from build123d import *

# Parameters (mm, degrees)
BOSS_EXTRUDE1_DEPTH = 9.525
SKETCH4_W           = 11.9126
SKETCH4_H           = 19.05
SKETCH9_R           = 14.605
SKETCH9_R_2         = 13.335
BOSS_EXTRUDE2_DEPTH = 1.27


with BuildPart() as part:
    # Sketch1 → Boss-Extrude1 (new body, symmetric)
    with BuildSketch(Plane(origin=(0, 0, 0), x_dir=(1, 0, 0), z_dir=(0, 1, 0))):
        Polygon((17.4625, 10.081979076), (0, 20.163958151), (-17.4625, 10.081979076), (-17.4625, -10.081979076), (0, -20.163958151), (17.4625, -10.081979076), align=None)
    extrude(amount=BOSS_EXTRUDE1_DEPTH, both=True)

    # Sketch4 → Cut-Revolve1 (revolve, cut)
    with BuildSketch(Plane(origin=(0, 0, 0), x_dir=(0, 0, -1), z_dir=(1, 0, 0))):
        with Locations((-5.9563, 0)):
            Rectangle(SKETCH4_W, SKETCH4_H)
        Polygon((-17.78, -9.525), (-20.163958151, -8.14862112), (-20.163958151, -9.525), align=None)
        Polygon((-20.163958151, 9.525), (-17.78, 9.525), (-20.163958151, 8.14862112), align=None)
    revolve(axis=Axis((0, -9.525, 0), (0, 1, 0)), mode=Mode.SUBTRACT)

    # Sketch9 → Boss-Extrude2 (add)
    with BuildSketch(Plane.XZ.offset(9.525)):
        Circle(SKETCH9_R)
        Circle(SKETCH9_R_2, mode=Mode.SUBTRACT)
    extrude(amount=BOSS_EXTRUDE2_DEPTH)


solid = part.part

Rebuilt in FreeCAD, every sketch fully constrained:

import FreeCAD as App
import Part
import Sketcher
Q = App.Units.Quantity


def add_polygon(sketch, points):
    """Adds a closed chain of lines whose ends are joined by coincident constraints."""
    first, n = sketch.GeometryCount, len(points)
    for a, b in zip(points, points[1:] + points[:1]):
        sketch.addGeometry(Part.LineSegment(App.Vector(*a, 0), App.Vector(*b, 0)), False)
    for i in range(n):
        sketch.addConstraint(Sketcher.Constraint("Coincident", first + i, 2, first + (i + 1) % n, 1))

doc = App.newDocument("Part")
body = doc.addObject("PartDesign::Body", "Body")

# Sketch on XZ plane
sketch1 = doc.addObject("Sketcher::SketchObject", "Sketch")
body.addObject(sketch1)
sketch1.AttachmentSupport = (doc.XZ_Plane, [""])
sketch1.MapMode = "FlatFace"
add_polygon(sketch1, [(17, -10), (0, -20), (-17, -10), (-17, 10), (0, 20), (17, 10)])  # lines 0-5
sketch1.addConstraint(Sketcher.Constraint("Vertical", 2))
sketch1.addConstraint(Sketcher.Constraint("Vertical", 5))
sketch1.addConstraint(Sketcher.Constraint("Symmetric", 0, 2, 3, 2, -1, 1))
sketch1.addConstraint(Sketcher.Constraint("Symmetric", 1, 2, 4, 2, -1, 1))
sketch1.addConstraint(Sketcher.Constraint("PointOnObject", 0, 2, -2))
sketch1.addConstraint(Sketcher.Constraint("Parallel", 0, 3))
sketch1.addConstraint(Sketcher.Constraint("Horizontal", 2, 2, 4, 2))
sketch1.addConstraint(Sketcher.Constraint("Angle", 0, Q("-150 deg")))
sketch1.addConstraint(Sketcher.Constraint("DistanceX", 1, 2, -1, 1, Q("0.6875 in")))
sketch1.addConstraint(Sketcher.Constraint("DistanceY", 2, 1, 2, 2, Q("20.163958 mm")))
pad1 = doc.addObject("PartDesign::Pad", "Pad")
body.addObject(pad1)
pad1.Profile = sketch1
pad1.Length = Q("0.75 in")
pad1.Midplane = True

# Sketch on YZ plane
sketch2 = doc.addObject("Sketcher::SketchObject", "Sketch001")
body.addObject(sketch2)
sketch2.AttachmentSupport = (doc.YZ_Plane, [""])
sketch2.MapMode = "FlatFace"
add_polygon(sketch2, [(9.5, 11.9), (-9.5, 11.9), (-9.5, 0), (9.5, 0)])  # lines 0-3
add_polygon(sketch2, [(-9.5, 17.8), (-8.1, 20.2), (-9.5, 20.2)])  # lines 4-6
add_polygon(sketch2, [(9.5, 17.8), (9.5, 20.2), (8.1, 20.2)])  # lines 7-9
sketch2.addConstraint(Sketcher.Constraint("Horizontal", 0))
sketch2.addConstraint(Sketcher.Constraint("Vertical", 1))
sketch2.addConstraint(Sketcher.Constraint("Horizontal", 2))
sketch2.addConstraint(Sketcher.Constraint("Vertical", 3))
sketch2.addConstraint(Sketcher.Constraint("Horizontal", 5))
sketch2.addConstraint(Sketcher.Constraint("Vertical", 6))
sketch2.addConstraint(Sketcher.Constraint("Vertical", 7))
sketch2.addConstraint(Sketcher.Constraint("Horizontal", 8))
sketch2.addConstraint(Sketcher.Constraint("Symmetric", 1, 2, 2, 2, -1, 1))
sketch2.addConstraint(Sketcher.Constraint("Symmetric", 5, 2, 7, 2, -2))
sketch2.addConstraint(Sketcher.Constraint("Horizontal", 6, 2, 9, 2))
sketch2.addConstraint(Sketcher.Constraint("Vertical", 1, 2, 5, 2))
sketch2.addConstraint(Sketcher.Constraint("Equal", 5, 8))
sketch2.addConstraint(Sketcher.Constraint("Angle", 4, Q("60 deg")))
sketch2.addConstraint(Sketcher.Constraint("DistanceX", 0, 2, 0, 1, Q("0.75 in")))
sketch2.addConstraint(Sketcher.Constraint("DistanceY", -1, 1, 6, 2, Q("0.7 in")))
sketch2.addConstraint(Sketcher.Constraint("DistanceY", 1, 2, 1, 1, Q("0.469 in")))
sketch2.addConstraint(Sketcher.Constraint("DistanceX", 5, 2, 5, 1, Q("1.376379 mm")))
groove = doc.addObject("PartDesign::Groove", "Groove")
body.addObject(groove)
groove.Profile = sketch2
groove.ReferenceAxis = (sketch2, ["H_Axis"])
groove.Angle = 360

# Sketch on XZ plane
sketch3 = doc.addObject("Sketcher::SketchObject", "Sketch002")
body.addObject(sketch3)
sketch3.AttachmentSupport = (doc.XZ_Plane, [""])
sketch3.MapMode = "FlatFace"
sketch3.AttachmentOffset = App.Placement(App.Vector(0, 0, 0.375 * 25.4), App.Rotation())
sketch3.addGeometry(Part.Circle(App.Vector(0, 0, 0), App.Vector(0, 0, 1), 15), False)
sketch3.addGeometry(Part.Circle(App.Vector(0, 0, 0), App.Vector(0, 0, 1), 13), False)
sketch3.addConstraint(Sketcher.Constraint("Coincident", 0, 3, -1, 1))
sketch3.addConstraint(Sketcher.Constraint("Coincident", 1, 3, -1, 1))
sketch3.addConstraint(Sketcher.Constraint("Diameter", 0, Q("1.15 in")))
sketch3.addConstraint(Sketcher.Constraint("Diameter", 1, Q("1.05 in")))
pad2 = doc.addObject("PartDesign::Pad", "Pad001")
body.addObject(pad2)
pad2.Profile = sketch3
pad2.Length = Q("0.05 in")

doc.recompute()
